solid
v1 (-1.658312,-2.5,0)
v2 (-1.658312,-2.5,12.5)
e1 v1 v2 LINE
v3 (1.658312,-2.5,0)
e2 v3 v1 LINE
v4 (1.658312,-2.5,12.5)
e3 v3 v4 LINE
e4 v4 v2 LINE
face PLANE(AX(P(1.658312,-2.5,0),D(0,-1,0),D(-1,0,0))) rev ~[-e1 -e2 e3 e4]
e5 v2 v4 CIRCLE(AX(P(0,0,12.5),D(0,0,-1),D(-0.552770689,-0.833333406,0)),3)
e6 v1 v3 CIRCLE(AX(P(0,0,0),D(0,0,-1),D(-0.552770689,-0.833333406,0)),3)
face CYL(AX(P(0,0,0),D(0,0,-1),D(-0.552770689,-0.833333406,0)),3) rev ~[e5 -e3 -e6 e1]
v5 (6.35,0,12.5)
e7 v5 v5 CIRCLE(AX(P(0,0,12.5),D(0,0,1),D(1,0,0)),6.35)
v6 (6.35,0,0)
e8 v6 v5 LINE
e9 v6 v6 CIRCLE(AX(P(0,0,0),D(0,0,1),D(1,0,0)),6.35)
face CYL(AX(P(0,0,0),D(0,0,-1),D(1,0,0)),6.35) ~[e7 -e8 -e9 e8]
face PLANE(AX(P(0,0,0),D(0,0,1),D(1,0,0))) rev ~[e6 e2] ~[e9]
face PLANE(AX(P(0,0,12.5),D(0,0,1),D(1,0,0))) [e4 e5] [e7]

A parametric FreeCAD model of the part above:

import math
import FreeCAD as App
import Part
import Sketcher

V = App.Vector

doc = App.newDocument("Part")
body = doc.addObject("PartDesign::Body", "Body")

sketch1 = body.newObject("Sketcher::SketchObject", "Sketch")
sketch1.AttachmentSupport = (doc.getObject("XY_Plane"), [""])
sketch1.MapMode = "FlatFace"
sketch1.addGeometry([
    Part.Circle(V(0, 0, 0), V(0, 0, 1), 6.3),
    Part.LineSegment(V(1.7, -2.5, 0), V(-1.7, -2.5, 0)),
    Part.ArcOfCircle(Part.Circle(V(0, 0, 0), V(0, 0, 1), 3), math.radians(-56), math.radians(236)),
], False)
sketch1.addConstraint([
    Sketcher.Constraint("Coincident", 1, 1, 2, 1),
    Sketcher.Constraint("Coincident", 2, 2, 1, 2),
    Sketcher.Constraint("Horizontal", 1),
    Sketcher.Constraint("Coincident", 0, 3, -1, 1),
    Sketcher.Constraint("Coincident", 2, 3, -1, 1),
    Sketcher.Constraint("Radius", 2, 3.0),
    Sketcher.Constraint("Diameter", 0, 12.7),
    Sketcher.Constraint("DistanceY", 1, 1, -1, 1, 2.5),
])
pad1 = body.newObject("PartDesign::Pad", "Pad")
pad1.Profile = sketch1
pad1.Length = 12.5

doc.recompute()
